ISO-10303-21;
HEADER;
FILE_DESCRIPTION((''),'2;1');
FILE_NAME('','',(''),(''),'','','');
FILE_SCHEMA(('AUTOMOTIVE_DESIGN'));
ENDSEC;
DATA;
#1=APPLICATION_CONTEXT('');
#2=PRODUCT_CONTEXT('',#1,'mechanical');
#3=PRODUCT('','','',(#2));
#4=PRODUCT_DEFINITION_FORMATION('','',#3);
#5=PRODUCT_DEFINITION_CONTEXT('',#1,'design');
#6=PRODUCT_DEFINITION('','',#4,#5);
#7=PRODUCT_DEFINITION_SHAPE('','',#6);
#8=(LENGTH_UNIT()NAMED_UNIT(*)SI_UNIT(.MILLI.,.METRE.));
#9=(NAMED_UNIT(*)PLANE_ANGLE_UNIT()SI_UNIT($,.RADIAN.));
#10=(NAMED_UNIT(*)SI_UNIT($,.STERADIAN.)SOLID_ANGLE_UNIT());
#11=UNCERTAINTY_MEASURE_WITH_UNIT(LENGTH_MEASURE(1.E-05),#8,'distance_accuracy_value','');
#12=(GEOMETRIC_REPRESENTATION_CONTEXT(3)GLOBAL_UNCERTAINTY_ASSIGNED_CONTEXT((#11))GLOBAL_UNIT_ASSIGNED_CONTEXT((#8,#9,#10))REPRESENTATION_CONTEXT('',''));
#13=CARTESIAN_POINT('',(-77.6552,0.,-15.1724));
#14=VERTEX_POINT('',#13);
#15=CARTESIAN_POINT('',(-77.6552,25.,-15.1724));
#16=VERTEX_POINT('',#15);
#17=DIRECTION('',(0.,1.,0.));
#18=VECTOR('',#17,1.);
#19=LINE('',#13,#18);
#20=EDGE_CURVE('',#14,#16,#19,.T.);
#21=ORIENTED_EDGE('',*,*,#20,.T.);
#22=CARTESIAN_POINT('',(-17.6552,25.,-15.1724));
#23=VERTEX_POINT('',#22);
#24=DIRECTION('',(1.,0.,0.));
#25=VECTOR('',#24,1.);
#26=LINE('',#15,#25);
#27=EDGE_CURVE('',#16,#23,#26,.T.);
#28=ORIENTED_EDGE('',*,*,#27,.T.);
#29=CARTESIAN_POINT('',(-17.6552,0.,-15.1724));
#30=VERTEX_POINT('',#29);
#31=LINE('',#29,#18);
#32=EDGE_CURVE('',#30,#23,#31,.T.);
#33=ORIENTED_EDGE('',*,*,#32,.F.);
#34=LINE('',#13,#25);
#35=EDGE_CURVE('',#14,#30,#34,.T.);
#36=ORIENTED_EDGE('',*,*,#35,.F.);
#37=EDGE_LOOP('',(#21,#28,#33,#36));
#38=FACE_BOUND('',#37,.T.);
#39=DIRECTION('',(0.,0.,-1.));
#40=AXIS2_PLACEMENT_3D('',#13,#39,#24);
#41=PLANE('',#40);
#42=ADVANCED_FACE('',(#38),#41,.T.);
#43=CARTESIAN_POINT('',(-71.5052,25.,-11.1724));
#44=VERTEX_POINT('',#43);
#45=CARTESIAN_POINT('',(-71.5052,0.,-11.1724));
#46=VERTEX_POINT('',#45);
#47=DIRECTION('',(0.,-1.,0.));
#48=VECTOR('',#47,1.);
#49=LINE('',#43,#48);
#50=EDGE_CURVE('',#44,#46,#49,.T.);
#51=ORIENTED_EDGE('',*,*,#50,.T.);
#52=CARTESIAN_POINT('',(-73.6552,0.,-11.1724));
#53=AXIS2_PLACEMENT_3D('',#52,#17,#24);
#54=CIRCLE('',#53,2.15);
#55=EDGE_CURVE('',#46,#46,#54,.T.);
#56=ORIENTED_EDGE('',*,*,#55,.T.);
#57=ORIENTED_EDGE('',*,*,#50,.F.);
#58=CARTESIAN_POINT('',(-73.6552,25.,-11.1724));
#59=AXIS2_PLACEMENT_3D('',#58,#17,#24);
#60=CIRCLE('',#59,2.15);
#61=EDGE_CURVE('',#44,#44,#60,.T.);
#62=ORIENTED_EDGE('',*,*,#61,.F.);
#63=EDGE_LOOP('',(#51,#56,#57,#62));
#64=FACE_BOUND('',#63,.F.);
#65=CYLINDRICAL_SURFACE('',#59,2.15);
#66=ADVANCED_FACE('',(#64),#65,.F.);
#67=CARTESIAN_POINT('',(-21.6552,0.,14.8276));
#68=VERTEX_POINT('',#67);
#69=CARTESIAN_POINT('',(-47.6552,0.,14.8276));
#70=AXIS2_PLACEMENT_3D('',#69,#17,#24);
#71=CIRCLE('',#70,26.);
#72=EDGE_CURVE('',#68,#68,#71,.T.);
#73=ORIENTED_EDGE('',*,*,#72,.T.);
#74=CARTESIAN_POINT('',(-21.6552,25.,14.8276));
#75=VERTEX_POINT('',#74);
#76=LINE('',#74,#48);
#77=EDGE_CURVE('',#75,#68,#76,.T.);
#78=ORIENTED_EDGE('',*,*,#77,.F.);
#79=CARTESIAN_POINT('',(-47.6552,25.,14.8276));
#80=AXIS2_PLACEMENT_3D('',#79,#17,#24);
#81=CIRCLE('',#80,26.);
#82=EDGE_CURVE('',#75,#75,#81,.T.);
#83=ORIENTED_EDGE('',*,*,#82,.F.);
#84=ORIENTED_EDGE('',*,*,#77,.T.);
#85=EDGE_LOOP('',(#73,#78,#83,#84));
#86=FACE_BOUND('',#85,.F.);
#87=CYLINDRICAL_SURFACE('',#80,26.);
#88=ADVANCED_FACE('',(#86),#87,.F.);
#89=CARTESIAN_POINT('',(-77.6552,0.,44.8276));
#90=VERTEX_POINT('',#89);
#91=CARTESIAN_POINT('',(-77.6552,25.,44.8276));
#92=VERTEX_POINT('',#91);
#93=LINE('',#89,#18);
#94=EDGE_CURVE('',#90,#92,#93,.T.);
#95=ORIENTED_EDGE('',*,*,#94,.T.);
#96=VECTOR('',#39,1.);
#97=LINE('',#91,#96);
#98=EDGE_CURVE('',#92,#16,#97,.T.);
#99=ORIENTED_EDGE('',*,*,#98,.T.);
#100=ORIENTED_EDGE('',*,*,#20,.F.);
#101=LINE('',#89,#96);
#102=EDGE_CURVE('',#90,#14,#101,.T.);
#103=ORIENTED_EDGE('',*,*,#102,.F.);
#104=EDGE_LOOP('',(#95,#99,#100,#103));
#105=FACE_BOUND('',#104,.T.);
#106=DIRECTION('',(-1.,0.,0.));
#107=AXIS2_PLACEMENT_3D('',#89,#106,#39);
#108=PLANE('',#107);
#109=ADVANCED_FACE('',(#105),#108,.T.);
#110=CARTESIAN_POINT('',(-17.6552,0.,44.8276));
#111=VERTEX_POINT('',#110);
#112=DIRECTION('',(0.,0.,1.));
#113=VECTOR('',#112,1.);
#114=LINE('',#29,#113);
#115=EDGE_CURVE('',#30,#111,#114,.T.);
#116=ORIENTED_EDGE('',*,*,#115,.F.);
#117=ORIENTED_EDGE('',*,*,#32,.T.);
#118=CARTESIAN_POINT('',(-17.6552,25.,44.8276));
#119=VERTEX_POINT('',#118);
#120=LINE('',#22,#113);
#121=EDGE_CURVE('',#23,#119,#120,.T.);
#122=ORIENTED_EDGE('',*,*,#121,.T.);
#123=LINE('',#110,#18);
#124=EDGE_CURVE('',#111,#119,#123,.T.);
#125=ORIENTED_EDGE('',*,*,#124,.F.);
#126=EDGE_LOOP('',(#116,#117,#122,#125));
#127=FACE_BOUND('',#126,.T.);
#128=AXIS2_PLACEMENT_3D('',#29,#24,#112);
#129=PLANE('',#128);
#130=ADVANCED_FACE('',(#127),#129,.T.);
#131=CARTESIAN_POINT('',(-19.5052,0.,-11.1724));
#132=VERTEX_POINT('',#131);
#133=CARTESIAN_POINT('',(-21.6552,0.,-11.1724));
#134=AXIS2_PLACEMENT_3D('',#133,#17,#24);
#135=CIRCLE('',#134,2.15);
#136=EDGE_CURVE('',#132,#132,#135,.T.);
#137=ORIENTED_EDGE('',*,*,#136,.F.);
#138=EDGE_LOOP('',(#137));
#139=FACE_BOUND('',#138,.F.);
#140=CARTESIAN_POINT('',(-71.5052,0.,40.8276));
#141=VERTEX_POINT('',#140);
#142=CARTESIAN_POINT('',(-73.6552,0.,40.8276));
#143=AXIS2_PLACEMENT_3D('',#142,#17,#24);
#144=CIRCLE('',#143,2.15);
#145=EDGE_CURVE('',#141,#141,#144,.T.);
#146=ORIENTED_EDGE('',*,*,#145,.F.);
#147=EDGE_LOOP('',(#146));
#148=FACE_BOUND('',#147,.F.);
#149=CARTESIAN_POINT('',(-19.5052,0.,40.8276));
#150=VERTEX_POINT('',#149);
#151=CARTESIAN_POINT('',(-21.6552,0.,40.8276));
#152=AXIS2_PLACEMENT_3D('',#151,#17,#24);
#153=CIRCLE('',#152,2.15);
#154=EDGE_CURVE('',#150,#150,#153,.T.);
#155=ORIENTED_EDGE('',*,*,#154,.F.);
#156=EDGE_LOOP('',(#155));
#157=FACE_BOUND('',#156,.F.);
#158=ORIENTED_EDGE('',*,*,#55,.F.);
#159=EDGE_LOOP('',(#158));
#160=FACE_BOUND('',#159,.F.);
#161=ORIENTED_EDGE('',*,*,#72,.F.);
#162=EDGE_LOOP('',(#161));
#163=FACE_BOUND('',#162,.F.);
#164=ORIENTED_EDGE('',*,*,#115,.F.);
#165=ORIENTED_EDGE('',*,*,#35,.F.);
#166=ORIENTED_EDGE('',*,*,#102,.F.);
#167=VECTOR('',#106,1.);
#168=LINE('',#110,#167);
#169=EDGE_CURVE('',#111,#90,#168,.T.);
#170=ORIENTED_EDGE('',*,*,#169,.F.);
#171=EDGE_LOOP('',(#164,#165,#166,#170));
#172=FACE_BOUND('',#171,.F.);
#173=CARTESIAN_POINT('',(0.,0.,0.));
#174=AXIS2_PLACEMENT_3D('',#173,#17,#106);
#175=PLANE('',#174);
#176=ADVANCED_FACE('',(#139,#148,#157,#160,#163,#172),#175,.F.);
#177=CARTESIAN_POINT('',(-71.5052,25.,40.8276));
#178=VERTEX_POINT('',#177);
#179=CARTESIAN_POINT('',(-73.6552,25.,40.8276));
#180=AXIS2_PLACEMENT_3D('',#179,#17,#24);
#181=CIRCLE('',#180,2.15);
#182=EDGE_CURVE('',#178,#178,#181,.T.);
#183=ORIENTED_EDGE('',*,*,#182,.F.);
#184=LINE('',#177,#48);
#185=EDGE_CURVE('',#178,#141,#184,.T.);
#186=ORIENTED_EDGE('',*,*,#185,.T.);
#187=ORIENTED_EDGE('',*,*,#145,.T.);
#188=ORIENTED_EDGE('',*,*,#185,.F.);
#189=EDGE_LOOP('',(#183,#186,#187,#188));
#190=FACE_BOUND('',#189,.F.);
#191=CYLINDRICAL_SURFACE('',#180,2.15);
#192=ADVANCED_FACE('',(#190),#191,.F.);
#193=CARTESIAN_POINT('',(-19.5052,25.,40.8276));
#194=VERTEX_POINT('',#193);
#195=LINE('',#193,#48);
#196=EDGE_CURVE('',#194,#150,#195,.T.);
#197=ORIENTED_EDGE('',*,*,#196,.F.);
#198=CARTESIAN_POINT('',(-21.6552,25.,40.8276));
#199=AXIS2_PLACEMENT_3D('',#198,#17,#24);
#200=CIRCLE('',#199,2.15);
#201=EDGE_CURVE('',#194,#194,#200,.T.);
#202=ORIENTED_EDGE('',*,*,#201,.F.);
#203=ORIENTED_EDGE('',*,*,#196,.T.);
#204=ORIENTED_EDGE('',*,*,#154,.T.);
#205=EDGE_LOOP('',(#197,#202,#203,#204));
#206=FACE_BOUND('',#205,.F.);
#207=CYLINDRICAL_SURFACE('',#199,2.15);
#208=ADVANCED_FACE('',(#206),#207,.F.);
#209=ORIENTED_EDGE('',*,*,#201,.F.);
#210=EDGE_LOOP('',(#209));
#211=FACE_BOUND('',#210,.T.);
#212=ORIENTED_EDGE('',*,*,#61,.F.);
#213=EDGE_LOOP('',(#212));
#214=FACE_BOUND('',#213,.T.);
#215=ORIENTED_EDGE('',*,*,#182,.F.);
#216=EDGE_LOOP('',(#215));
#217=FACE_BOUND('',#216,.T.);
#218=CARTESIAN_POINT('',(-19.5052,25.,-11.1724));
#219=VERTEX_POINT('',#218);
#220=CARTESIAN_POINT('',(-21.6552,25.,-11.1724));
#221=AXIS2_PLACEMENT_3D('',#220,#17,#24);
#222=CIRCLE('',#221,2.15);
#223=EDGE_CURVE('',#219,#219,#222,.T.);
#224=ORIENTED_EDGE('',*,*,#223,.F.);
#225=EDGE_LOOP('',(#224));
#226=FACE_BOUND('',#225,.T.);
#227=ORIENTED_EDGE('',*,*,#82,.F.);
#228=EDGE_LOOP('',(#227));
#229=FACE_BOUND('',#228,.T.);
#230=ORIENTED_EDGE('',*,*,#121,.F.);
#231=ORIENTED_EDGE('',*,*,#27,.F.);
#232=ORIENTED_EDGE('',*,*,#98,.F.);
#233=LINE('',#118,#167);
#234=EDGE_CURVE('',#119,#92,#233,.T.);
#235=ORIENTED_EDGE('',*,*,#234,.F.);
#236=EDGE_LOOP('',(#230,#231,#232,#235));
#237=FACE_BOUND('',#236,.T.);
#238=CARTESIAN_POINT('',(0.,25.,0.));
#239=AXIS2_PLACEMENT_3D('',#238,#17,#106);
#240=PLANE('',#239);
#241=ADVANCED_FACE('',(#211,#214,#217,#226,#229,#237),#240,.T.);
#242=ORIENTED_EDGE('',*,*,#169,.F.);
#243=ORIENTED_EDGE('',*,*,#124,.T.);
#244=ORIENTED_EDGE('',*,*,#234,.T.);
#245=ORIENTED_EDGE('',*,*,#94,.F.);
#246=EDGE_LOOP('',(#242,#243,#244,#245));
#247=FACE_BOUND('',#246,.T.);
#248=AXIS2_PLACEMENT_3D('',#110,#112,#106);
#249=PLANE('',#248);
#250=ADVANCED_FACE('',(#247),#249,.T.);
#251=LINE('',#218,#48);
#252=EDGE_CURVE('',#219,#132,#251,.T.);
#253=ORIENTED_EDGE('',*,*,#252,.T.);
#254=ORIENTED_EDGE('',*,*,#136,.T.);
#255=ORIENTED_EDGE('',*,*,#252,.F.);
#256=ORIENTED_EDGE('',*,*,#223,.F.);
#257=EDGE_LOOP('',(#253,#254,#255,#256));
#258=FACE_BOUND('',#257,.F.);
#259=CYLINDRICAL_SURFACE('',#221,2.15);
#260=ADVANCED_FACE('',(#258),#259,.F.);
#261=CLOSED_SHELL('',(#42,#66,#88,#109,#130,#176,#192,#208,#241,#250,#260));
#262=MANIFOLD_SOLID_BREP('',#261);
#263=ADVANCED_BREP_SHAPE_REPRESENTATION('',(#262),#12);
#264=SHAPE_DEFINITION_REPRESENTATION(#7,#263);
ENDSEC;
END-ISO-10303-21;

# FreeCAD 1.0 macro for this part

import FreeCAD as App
import Part
import Sketcher

doc = App.newDocument("Part")
params = doc.addObject("Spreadsheet::Sheet", "Params")
for row, (alias, value) in enumerate([
    ("sketch1_width", "60 mm"),
    ("pad1_length", "25 mm"),
    ("sketch2_diameter", "52 mm"),
    ("sketch2_diameter2", "4.3 mm"),
    ("pocket1_length", "38 mm"),
], start=1):
    params.set(f"A{row}", alias)
    params.set(f"B{row}", "=" + value)
    params.setAlias(f"B{row}", alias)

body = doc.addObject("PartDesign::Body", "Body")

sketch1 = body.newObject("Sketcher::SketchObject", "Sketch")
sketch1.AttachmentSupport = (doc.getObject("XZ_Plane"), [""])
sketch1.MapMode = "FlatFace"
sketch1.addGeometry(Part.LineSegment(App.Vector(-77.6552, 44.8276, 0), App.Vector(-17.6552, 44.8276, 0)), False)
sketch1.addGeometry(Part.LineSegment(App.Vector(-17.6552, 44.8276, 0), App.Vector(-17.6552, -15.1724, 0)), False)
sketch1.addGeometry(Part.LineSegment(App.Vector(-17.6552, -15.1724, 0), App.Vector(-77.6552, -15.1724, 0)), False)
sketch1.addGeometry(Part.LineSegment(App.Vector(-77.6552, -15.1724, 0), App.Vector(-77.6552, 44.8276, 0)), False)
sketch1.addConstraint(Sketcher.Constraint("Coincident", 0, 2, 1, 1))
sketch1.addConstraint(Sketcher.Constraint("Coincident", 1, 2, 2, 1))
sketch1.addConstraint(Sketcher.Constraint("Coincident", 2, 2, 3, 1))
sketch1.addConstraint(Sketcher.Constraint("Coincident", 3, 2, 0, 1))
sketch1.addConstraint(Sketcher.Constraint("Horizontal", 0))
sketch1.addConstraint(Sketcher.Constraint("Vertical", 1))
sketch1.addConstraint(Sketcher.Constraint("Horizontal", 2))
sketch1.addConstraint(Sketcher.Constraint("Vertical", 3))
sketch1.addConstraint(Sketcher.Constraint("Equal", 2, 1))
sketch1.addConstraint(Sketcher.Constraint("DistanceX", 0, 1, 0, 2, 60.0))
sketch1.addConstraint(Sketcher.Constraint("DistanceX", 0, 2, -1, 1, 17.6552))
sketch1.addConstraint(Sketcher.Constraint("DistanceY", -1, 1, 0, 2, 44.8276))
sketch1.setExpression("Constraints[9]", "Params.sketch1_width")
pad1 = body.newObject("PartDesign::Pad", "Pad")
pad1.Profile = sketch1
pad1.setExpression("Length", "Params.pad1_length")
pad1.Reversed = True

sketch2 = body.newObject("Sketcher::SketchObject", "Sketch001")
sketch2.AttachmentSupport = (doc.getObject("XZ_Plane"), [""])
sketch2.MapMode = "FlatFace"
sketch2.AttachmentOffset = App.Placement(App.Vector(0, 0, -25), App.Rotation())
sketch2.addGeometry(Part.Circle(App.Vector(-47.6552, 14.8276, 0), App.Vector(0, 0, 1), 26), False)
sketch2.addGeometry(Part.Circle(App.Vector(-73.6552, -11.1724, 0), App.Vector(0, 0, 1), 2.15), False)
sketch2.addGeometry(Part.Circle(App.Vector(-21.6552, -11.1724, 0), App.Vector(0, 0, 1), 2.15), False)
sketch2.addGeometry(Part.Circle(App.Vector(-21.6552, 40.8276, 0), App.Vector(0, 0, 1), 2.15), False)
sketch2.addGeometry(Part.Circle(App.Vector(-73.6552, 40.8276, 0), App.Vector(0, 0, 1), 2.15), False)
sketch2.addConstraint(Sketcher.Constraint("Equal", 1, 2))
sketch2.addConstraint(Sketcher.Constraint("Equal", 2, 3))
sketch2.addConstraint(Sketcher.Constraint("Equal", 3, 4))
sketch2.addConstraint(Sketcher.Constraint("Horizontal", 1, 3, 2, 3))
sketch2.addConstraint(Sketcher.Constraint("Horizontal", 3, 3, 4, 3))
sketch2.addConstraint(Sketcher.Constraint("Vertical", 2, 3, 3, 3))
sketch2.addConstraint(Sketcher.Constraint("Vertical", 1, 3, 4, 3))
sketch2.addConstraint(Sketcher.Constraint("Diameter", 0, 52.0))
sketch2.addConstraint(Sketcher.Constraint("Diameter", 1, 4.3))
sketch2.addConstraint(Sketcher.Constraint("DistanceX", 1, 3, 2, 3, 52.0))
sketch2.addConstraint(Sketcher.Constraint("DistanceY", 2, 3, 3, 3, 52.0))
sketch2.addConstraint(Sketcher.Constraint("DistanceX", 1, 3, 0, 3, 26.0))
sketch2.addConstraint(Sketcher.Constraint("DistanceY", 1, 3, 0, 3, 26.0))
sketch2.addConstraint(Sketcher.Constraint("DistanceX", 0, 3, -1, 1, 47.6552))
sketch2.addConstraint(Sketcher.Constraint("DistanceY", -1, 1, 0, 3, 14.8276))
sketch2.setExpression("Constraints[7]", "Params.sketch2_diameter")
sketch2.setExpression("Constraints[8]", "Params.sketch2_diameter2")
pocket1 = body.newObject("PartDesign::Pocket", "Pocket")
pocket1.Profile = sketch2
pocket1.setExpression("Length", "Params.pocket1_length")
pocket1.Reversed = True

doc.recompute()
